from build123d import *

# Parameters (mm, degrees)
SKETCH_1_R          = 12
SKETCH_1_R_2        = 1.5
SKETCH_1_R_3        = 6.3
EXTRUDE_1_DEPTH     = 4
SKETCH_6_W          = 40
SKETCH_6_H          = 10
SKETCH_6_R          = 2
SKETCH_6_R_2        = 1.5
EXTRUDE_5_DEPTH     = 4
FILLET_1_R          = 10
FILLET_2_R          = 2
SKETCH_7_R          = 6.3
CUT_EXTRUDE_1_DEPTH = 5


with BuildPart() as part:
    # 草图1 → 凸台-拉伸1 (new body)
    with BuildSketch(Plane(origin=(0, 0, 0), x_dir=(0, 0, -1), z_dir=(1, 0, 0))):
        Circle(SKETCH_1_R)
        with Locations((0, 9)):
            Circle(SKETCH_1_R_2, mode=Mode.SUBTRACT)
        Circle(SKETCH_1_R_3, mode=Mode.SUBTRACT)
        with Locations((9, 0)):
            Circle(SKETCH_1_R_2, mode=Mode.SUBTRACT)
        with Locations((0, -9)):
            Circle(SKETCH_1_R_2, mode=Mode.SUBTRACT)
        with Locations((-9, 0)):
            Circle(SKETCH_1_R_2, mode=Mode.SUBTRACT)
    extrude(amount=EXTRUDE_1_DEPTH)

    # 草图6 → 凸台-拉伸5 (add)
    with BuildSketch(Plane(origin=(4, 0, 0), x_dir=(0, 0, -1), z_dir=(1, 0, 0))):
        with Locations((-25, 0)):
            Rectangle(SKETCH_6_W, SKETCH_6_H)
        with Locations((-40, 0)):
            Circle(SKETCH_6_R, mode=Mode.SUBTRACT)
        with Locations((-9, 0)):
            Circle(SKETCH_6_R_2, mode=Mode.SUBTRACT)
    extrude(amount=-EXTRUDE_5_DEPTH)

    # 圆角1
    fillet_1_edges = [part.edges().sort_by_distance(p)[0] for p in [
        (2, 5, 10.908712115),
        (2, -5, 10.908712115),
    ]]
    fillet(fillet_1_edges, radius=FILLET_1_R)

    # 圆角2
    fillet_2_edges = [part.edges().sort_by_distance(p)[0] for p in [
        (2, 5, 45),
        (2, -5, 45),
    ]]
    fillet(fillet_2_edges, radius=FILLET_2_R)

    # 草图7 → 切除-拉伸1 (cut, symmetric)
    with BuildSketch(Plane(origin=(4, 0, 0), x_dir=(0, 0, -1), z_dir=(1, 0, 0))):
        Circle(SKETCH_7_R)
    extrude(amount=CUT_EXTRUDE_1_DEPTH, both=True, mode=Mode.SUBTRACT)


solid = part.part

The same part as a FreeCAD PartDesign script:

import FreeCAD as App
import Part
import Sketcher

V = App.Vector
Q = App.Units.Quantity


def edges_at(feature, points):
    """Names of the edges that pass closest to the given points."""
    edges = feature.Shape.Edges
    near = lambda p: min(range(len(edges)), key=lambda i: edges[i].distToShape(Part.Vertex(*p))[0])
    return sorted({f"Edge{near(p) + 1}" for p in points})

doc = App.newDocument("Part")
params = doc.addObject("Spreadsheet::Sheet", "Params")
for row, (alias, value) in enumerate([
    ("sketch1_diameter", "24 mm"),
    ("sketch1_diameter2", "3 mm"),
    ("sketch1_diameter3", "12.6 mm"),
    ("pad1_length", "4 mm"),
    ("sketch2_diameter", "4 mm"),
    ("sketch2_diameter2", "3 mm"),
    ("sketch2_width", "10 mm"),
    ("sketch2_height", "40 mm"),
    ("pad2_length", "4 mm"),
    ("fillet_radius", "10 mm"),
    ("fillet2_radius", "2 mm"),
    ("sketch3_diameter", "12.6 mm"),
    ("pocket1_length", "10 mm"),
], start=1):
    params.set(f"A{row}", alias)
    params.set(f"B{row}", "=" + value)
    params.setAlias(f"B{row}", alias)

body = doc.addObject("PartDesign::Body", "Body")

# Sketch on YZ plane
sketch1 = body.newObject("Sketcher::SketchObject", "Sketch")
sketch1.AttachmentSupport = (doc.getObject("YZ_Plane"), [""])
sketch1.MapMode = "FlatFace"
sketch1.addGeometry(Part.Circle(V(0, 0, 0), V(0, 0, 1), 12), False)
sketch1.addGeometry(Part.Circle(V(-9, 0, 0), V(0, 0, 1), 1.5), False)
sketch1.addGeometry(Part.Circle(V(0, 9, 0), V(0, 0, 1), 1.5), False)
sketch1.addGeometry(Part.Circle(V(0, 0, 0), V(0, 0, 1), 6.3), False)
sketch1.addGeometry(Part.Circle(V(0, -9, 0), V(0, 0, 1), 1.5), False)
sketch1.addGeometry(Part.Circle(V(9, 0, 0), V(0, 0, 1), 1.5), False)
sketch1.addConstraint(Sketcher.Constraint("Coincident", 0, 3, -1, 1))
sketch1.addConstraint(Sketcher.Constraint("Coincident", 3, 3, -1, 1))
sketch1.addConstraint(Sketcher.Constraint("Equal", 1, 2))
sketch1.addConstraint(Sketcher.Constraint("Equal", 2, 4))
sketch1.addConstraint(Sketcher.Constraint("Equal", 4, 5))
sketch1.addConstraint(Sketcher.Constraint("Symmetric", 2, 3, 4, 3, -1, 1))
sketch1.addConstraint(Sketcher.Constraint("Symmetric", 1, 3, 5, 3, -1, 1))
sketch1.addConstraint(Sketcher.Constraint("PointOnObject", 1, 3, -1))
sketch1.addConstraint(Sketcher.Constraint("PointOnObject", 2, 3, -2))
sketch1.addConstraint(Sketcher.Constraint("Diameter", 0, Q("24 mm")))
sketch1.addConstraint(Sketcher.Constraint("Diameter", 1, Q("3 mm")))
sketch1.addConstraint(Sketcher.Constraint("Diameter", 3, Q("12.6 mm")))
sketch1.addConstraint(Sketcher.Constraint("DistanceX", 1, 3, -1, 1, Q("9 mm")))
sketch1.addConstraint(Sketcher.Constraint("DistanceY", -1, 1, 2, 3, Q("9 mm")))
sketch1.setExpression("Constraints[9]", "Params.sketch1_diameter")
sketch1.setExpression("Constraints[10]", "Params.sketch1_diameter2")
sketch1.setExpression("Constraints[11]", "Params.sketch1_diameter3")
pad1 = body.newObject("PartDesign::Pad", "Pad")
pad1.Profile = sketch1
pad1.setExpression("Length", "Params.pad1_length")

# Sketch on YZ plane
sketch2 = body.newObject("Sketcher::SketchObject", "Sketch001")
sketch2.AttachmentSupport = (doc.getObject("YZ_Plane"), [""])
sketch2.MapMode = "FlatFace"
sketch2.AttachmentOffset = App.Placement(V(0, 0, 4), App.Rotation())
sketch2.addGeometry(Part.LineSegment(V(5, 45, 0), V(-5, 45, 0)), False)
sketch2.addGeometry(Part.LineSegment(V(-5, 45, 0), V(-5, 5, 0)), False)
sketch2.addGeometry(Part.LineSegment(V(-5, 5, 0), V(5, 5, 0)), False)
sketch2.addGeometry(Part.LineSegment(V(5, 5, 0), V(5, 45, 0)), False)
sketch2.addGeometry(Part.Circle(V(0, 40, 0), V(0, 0, 1), 2), False)
sketch2.addGeometry(Part.Circle(V(0, 9, 0), V(0, 0, 1), 1.5), False)
sketch2.addConstraint(Sketcher.Constraint("Coincident", 0, 2, 1, 1))
sketch2.addConstraint(Sketcher.Constraint("Coincident", 1, 2, 2, 1))
sketch2.addConstraint(Sketcher.Constraint("Coincident", 2, 2, 3, 1))
sketch2.addConstraint(Sketcher.Constraint("Coincident", 3, 2, 0, 1))
sketch2.addConstraint(Sketcher.Constraint("Horizontal", 0))
sketch2.addConstraint(Sketcher.Constraint("Vertical", 1))
sketch2.addConstraint(Sketcher.Constraint("Horizontal", 2))
sketch2.addConstraint(Sketcher.Constraint("Vertical", 3))
sketch2.addConstraint(Sketcher.Constraint("PointOnObject", 4, 3, -2))
sketch2.addConstraint(Sketcher.Constraint("PointOnObject", 5, 3, -2))
sketch2.addConstraint(Sketcher.Constraint("Diameter", 4, Q("4 mm")))
sketch2.addConstraint(Sketcher.Constraint("Diameter", 5, Q("3 mm")))
sketch2.addConstraint(Sketcher.Constraint("DistanceX", 0, 2, 0, 1, Q("10 mm")))
sketch2.addConstraint(Sketcher.Constraint("DistanceY", 1, 2, 1, 1, Q("40 mm")))
sketch2.addConstraint(Sketcher.Constraint("DistanceY", -1, 1, 4, 3, Q("40 mm")))
sketch2.addConstraint(Sketcher.Constraint("DistanceY", -1, 1, 5, 3, Q("9 mm")))
sketch2.addConstraint(Sketcher.Constraint("DistanceX", 0, 2, -1, 1, Q("5 mm")))
sketch2.addConstraint(Sketcher.Constraint("DistanceY", -1, 1, 0, 2, Q("45 mm")))
sketch2.setExpression("Constraints[10]", "Params.sketch2_diameter")
sketch2.setExpression("Constraints[11]", "Params.sketch2_diameter2")
sketch2.setExpression("Constraints[12]", "Params.sketch2_width")
sketch2.setExpression("Constraints[13]", "Params.sketch2_height")
pad2 = body.newObject("PartDesign::Pad", "Pad001")
pad2.Profile = sketch2
pad2.setExpression("Length", "Params.pad2_length")
pad2.Reversed = True
doc.recompute()

fillet = body.newObject("PartDesign::Fillet", "Fillet")
fillet.Base = (pad2, edges_at(pad2, [(2, 5, 10.909), (2, -5, 10.909)]))
fillet.setExpression("Radius", "Params.fillet_radius")
doc.recompute()

fillet2 = body.newObject("PartDesign::Fillet", "Fillet001")
fillet2.Base = (fillet, edges_at(fillet, [(2, 5, 45), (2, -5, 45)]))
fillet2.setExpression("Radius", "Params.fillet2_radius")

# Sketch on YZ plane
sketch3 = body.newObject("Sketcher::SketchObject", "Sketch002")
sketch3.AttachmentSupport = (doc.getObject("YZ_Plane"), [""])
sketch3.MapMode = "FlatFace"
sketch3.AttachmentOffset = App.Placement(V(0, 0, 4), App.Rotation())
sketch3.addGeometry(Part.Circle(V(0, 0, 0), V(0, 0, 1), 6), False)
sketch3.addConstraint(Sketcher.Constraint("Coincident", 0, 3, -1, 1))
sketch3.addConstraint(Sketcher.Constraint("Diameter", 0, Q("12.6 mm")))
sketch3.setExpression("Constraints[1]", "Params.sketch3_diameter")
pocket1 = body.newObject("PartDesign::Pocket", "Pocket")
pocket1.Profile = sketch3
pocket1.setExpression("Length", "Params.pocket1_length")
pocket1.Midplane = True

doc.recompute()
